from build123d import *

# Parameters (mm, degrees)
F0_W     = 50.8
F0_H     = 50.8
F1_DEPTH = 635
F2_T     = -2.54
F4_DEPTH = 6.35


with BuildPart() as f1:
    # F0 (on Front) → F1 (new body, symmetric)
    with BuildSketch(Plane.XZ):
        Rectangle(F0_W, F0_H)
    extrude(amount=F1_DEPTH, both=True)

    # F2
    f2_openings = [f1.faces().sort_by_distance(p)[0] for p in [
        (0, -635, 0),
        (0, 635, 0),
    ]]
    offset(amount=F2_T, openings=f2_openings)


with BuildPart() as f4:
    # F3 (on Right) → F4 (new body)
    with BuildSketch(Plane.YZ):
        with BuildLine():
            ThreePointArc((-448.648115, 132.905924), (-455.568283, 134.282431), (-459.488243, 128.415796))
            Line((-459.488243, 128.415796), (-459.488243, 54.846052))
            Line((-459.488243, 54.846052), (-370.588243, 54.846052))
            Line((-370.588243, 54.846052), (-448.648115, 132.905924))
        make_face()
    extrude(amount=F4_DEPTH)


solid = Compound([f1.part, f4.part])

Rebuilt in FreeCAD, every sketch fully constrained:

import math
import FreeCAD as App
import Part
import Sketcher
from FreeCAD import Vector
Q = App.Units.Quantity


def faces_at(feature, points):
    """Names of the faces that lie closest to the given points."""
    faces = feature.Shape.Faces
    near = lambda p: min(range(len(faces)), key=lambda i: faces[i].distToShape(Part.Vertex(*p))[0])
    return sorted({f"Face{near(p) + 1}" for p in points})


def add_polygon(sketch, points):
    """Adds a closed chain of lines whose ends are joined by coincident constraints."""
    first, n = sketch.GeometryCount, len(points)
    for a, b in zip(points, points[1:] + points[:1]):
        sketch.addGeometry(Part.LineSegment(App.Vector(*a, 0), App.Vector(*b, 0)), False)
    for i in range(n):
        sketch.addConstraint(Sketcher.Constraint("Coincident", first + i, 2, first + (i + 1) % n, 1))

doc = App.newDocument("Part")
body = doc.addObject("PartDesign::Body", "Body")

sketch1 = doc.addObject("Sketcher::SketchObject", "Sketch")
body.addObject(sketch1)
sketch1.AttachmentSupport = (doc.XZ_Plane, [""])
sketch1.MapMode = "FlatFace"
add_polygon(sketch1, [(-25, 25), (-25, -25), (25, -25), (25, 25)])
sketch1.addConstraint([
    Sketcher.Constraint("Vertical", 0),
    Sketcher.Constraint("Horizontal", 1),
    Sketcher.Constraint("Vertical", 2),
    Sketcher.Constraint("Horizontal", 3),
    Sketcher.Constraint("Symmetric", 0, 2, 2, 2, -1, 1),
    Sketcher.Constraint("Equal", 3, 0),
    Sketcher.Constraint("DistanceX", 1, 1, 1, 2, Q("2 in")),
])
pad1 = doc.addObject("PartDesign::Pad", "Pad")
body.addObject(pad1)
pad1.Profile = sketch1
pad1.Length = Q("50 in")
pad1.Midplane = True
doc.recompute()

thickness = doc.addObject("PartDesign::Thickness", "Thickness")
body.addObject(thickness)
thickness.Base = (pad1, faces_at(pad1, [(0, -635, 0), (0, 635, 0)]))
thickness.Value = Q("0.1 in")
thickness.Reversed = True
thickness.Join = "Arc"
body2 = doc.addObject("PartDesign::Body", "Body001")

sketch2 = doc.addObject("Sketcher::SketchObject", "Sketch001")
body2.addObject(sketch2)
sketch2.AttachmentSupport = (doc.getObject("YZ_Plane001"), [""])
sketch2.MapMode = "FlatFace"
sketch2.addGeometry([
    Part.ArcOfCircle(Part.Circle(Vector(-453, 128, 0), Vector(0, 0, 1), 6), math.radians(45), math.radians(180)),
    Part.LineSegment(Vector(-459, 128, 0), Vector(-459, 55, 0)),
    Part.LineSegment(Vector(-459, 55, 0), Vector(-371, 55, 0)),
    Part.LineSegment(Vector(-371, 55, 0), Vector(-449, 133, 0)),
], False)
sketch2.addConstraint([
    Sketcher.Constraint("Tangent", 0, 2, 1, 1),
    Sketcher.Constraint("Coincident", 1, 2, 2, 1),
    Sketcher.Constraint("Coincident", 2, 2, 3, 1),
    Sketcher.Constraint("Tangent", 3, 2, 0, 1),
    Sketcher.Constraint("Vertical", 1),
    Sketcher.Constraint("Horizontal", 2),
    Sketcher.Constraint("Radius", 0, Q("0.25 in")),
    Sketcher.Constraint("DistanceX", 2, 1, 2, 2, Q("3.5 in")),
    Sketcher.Constraint("Angle", 3, Q("135 deg")),
    Sketcher.Constraint("DistanceX", 0, 3, -1, 1, 453.138243),
    Sketcher.Constraint("DistanceY", -1, 1, 0, 3, 128.415796),
])
pad2 = doc.addObject("PartDesign::Pad", "Pad001")
body2.addObject(pad2)
pad2.Profile = sketch2
pad2.Length = Q("0.25 in")

doc.recompute()
